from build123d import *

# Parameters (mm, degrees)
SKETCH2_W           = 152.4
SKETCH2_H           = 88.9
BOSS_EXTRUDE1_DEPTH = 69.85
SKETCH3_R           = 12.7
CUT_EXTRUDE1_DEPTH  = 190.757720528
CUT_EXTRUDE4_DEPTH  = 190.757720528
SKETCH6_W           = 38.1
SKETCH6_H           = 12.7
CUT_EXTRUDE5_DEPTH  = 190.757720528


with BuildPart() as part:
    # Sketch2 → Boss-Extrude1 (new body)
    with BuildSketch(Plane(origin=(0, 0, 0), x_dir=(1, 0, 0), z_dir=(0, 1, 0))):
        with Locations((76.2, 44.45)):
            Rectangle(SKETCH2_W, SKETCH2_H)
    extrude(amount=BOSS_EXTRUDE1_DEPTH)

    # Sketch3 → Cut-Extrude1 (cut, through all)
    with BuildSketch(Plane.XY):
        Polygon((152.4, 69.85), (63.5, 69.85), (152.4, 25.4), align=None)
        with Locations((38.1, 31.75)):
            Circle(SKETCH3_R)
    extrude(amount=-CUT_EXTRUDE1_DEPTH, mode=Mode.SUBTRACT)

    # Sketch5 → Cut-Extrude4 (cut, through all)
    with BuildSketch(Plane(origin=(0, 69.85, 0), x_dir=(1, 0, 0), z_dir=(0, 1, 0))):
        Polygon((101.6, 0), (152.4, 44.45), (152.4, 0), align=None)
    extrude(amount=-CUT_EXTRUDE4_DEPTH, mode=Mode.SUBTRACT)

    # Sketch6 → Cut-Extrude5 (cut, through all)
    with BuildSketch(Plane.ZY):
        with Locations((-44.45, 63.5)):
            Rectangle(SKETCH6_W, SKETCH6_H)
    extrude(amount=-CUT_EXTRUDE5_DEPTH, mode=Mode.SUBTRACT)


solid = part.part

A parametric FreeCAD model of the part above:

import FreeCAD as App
import Part
import Sketcher
Q = App.Units.Quantity

doc = App.newDocument("Part")
body = doc.addObject("PartDesign::Body", "Body")

# Sketch on XZ plane
sketch1 = body.newObject("Sketcher::SketchObject", "Sketch")
sketch1.AttachmentSupport = (doc.getObject("XZ_Plane"), [""])
sketch1.MapMode = "FlatFace"
sketch1.addGeometry([
    Part.LineSegment(App.Vector(0, -89, 0), App.Vector(0, 0, 0)),
    Part.LineSegment(App.Vector(0, 0, 0), App.Vector(152, 0, 0)),
    Part.LineSegment(App.Vector(152, 0, 0), App.Vector(152, -89, 0)),
    Part.LineSegment(App.Vector(152, -89, 0), App.Vector(0, -89, 0)),
], False)
sketch1.addConstraint([
    Sketcher.Constraint("Coincident", 0, 2, 1, 1),
    Sketcher.Constraint("Coincident", 1, 2, 2, 1),
    Sketcher.Constraint("Coincident", 2, 2, 3, 1),
    Sketcher.Constraint("Coincident", 3, 2, 0, 1),
    Sketcher.Constraint("Vertical", 0),
    Sketcher.Constraint("Horizontal", 1),
    Sketcher.Constraint("Vertical", 2),
    Sketcher.Constraint("Horizontal", 3),
    Sketcher.Constraint("Coincident", 0, 2, -1, 1),
    Sketcher.Constraint("DistanceX", 1, 1, 1, 2, Q("6 in")),
    Sketcher.Constraint("DistanceY", 0, 1, 0, 2, Q("3.5 in")),
])
pad1 = body.newObject("PartDesign::Pad", "Pad")
pad1.Profile = sketch1
pad1.Length = Q("2.75 in")
pad1.Reversed = True

# Sketch on XY plane
sketch2 = body.newObject("Sketcher::SketchObject", "Sketch001")
sketch2.AttachmentSupport = (doc.getObject("XY_Plane"), [""])
sketch2.MapMode = "FlatFace"
sketch2.addGeometry([
    Part.LineSegment(App.Vector(152, 70, 0), App.Vector(64, 70, 0)),
    Part.LineSegment(App.Vector(64, 70, 0), App.Vector(152, 25, 0)),
    Part.LineSegment(App.Vector(152, 25, 0), App.Vector(152, 70, 0)),
    Part.Circle(App.Vector(38, 32, 0), App.Vector(0, 0, 1), 13),
], False)
sketch2.addConstraint([
    Sketcher.Constraint("Coincident", 0, 2, 1, 1),
    Sketcher.Constraint("Coincident", 1, 2, 2, 1),
    Sketcher.Constraint("Coincident", 2, 2, 0, 1),
    Sketcher.Constraint("Horizontal", 0),
    Sketcher.Constraint("Vertical", 2),
    Sketcher.Constraint("Diameter", 3, Q("1 in")),
    Sketcher.Constraint("DistanceX", 0, 2, 0, 1, Q("3.5 in")),
    Sketcher.Constraint("DistanceX", -1, 1, 1, 2, Q("6 in")),
    Sketcher.Constraint("DistanceY", -1, 1, 1, 2, Q("1 in")),
    Sketcher.Constraint("DistanceX", 3, 3, 0, 2, Q("1 in")),
    Sketcher.Constraint("DistanceY", 2, 1, 2, 2, Q("1.75 in")),
    Sketcher.Constraint("DistanceY", 3, 3, 0, 2, Q("1.5 in")),
])
pocket1 = body.newObject("PartDesign::Pocket", "Pocket")
pocket1.Profile = sketch2
pocket1.Type = "ThroughAll"

# Sketch on XZ plane
sketch3 = body.newObject("Sketcher::SketchObject", "Sketch002")
sketch3.AttachmentSupport = (doc.getObject("XZ_Plane"), [""])
sketch3.MapMode = "FlatFace"
sketch3.AttachmentOffset = App.Placement(App.Vector(0, 0, -2.75 * 25.4), App.Rotation())
sketch3.addGeometry([
    Part.LineSegment(App.Vector(152, -44, 0), App.Vector(102, 0, 0)),
    Part.LineSegment(App.Vector(102, 0, 0), App.Vector(152, 0, 0)),
    Part.LineSegment(App.Vector(152, 0, 0), App.Vector(152, -44, 0)),
], False)
sketch3.addConstraint([
    Sketcher.Constraint("Coincident", 0, 2, 1, 1),
    Sketcher.Constraint("Coincident", 1, 2, 2, 1),
    Sketcher.Constraint("Coincident", 2, 2, 0, 1),
    Sketcher.Constraint("Horizontal", 1),
    Sketcher.Constraint("Vertical", 2),
    Sketcher.Constraint("PointOnObject", 0, 2, -1),
    Sketcher.Constraint("DistanceX", 1, 1, 1, 2, Q("2 in")),
    Sketcher.Constraint("DistanceX", -1, 1, 0, 2, Q("4 in")),
    Sketcher.Constraint("DistanceY", 2, 2, 2, 1, Q("1.75 in")),
])
pocket2 = body.newObject("PartDesign::Pocket", "Pocket001")
pocket2.Profile = sketch3
pocket2.Type = "ThroughAll"
pocket2.Reversed = True

# Sketch on YZ plane
sketch4 = body.newObject("Sketcher::SketchObject", "Sketch003")
sketch4.AttachmentSupport = (doc.getObject("YZ_Plane"), [""])
sketch4.MapMode = "FlatFace"
sketch4.addGeometry([
    Part.LineSegment(App.Vector(70, -64, 0), App.Vector(57, -64, 0)),
    Part.LineSegment(App.Vector(57, -64, 0), App.Vector(57, -25, 0)),
    Part.LineSegment(App.Vector(57, -25, 0), App.Vector(70, -25, 0)),
    Part.LineSegment(App.Vector(70, -25, 0), App.Vector(70, -64, 0)),
], False)
sketch4.addConstraint([
    Sketcher.Constraint("Coincident", 0, 2, 1, 1),
    Sketcher.Constraint("Coincident", 1, 2, 2, 1),
    Sketcher.Constraint("Coincident", 2, 2, 3, 1),
    Sketcher.Constraint("Coincident", 3, 2, 0, 1),
    Sketcher.Constraint("Horizontal", 0),
    Sketcher.Constraint("Vertical", 1),
    Sketcher.Constraint("Horizontal", 2),
    Sketcher.Constraint("Vertical", 3),
    Sketcher.Constraint("DistanceX", 0, 2, 0, 1, Q("0.5 in")),
    Sketcher.Constraint("DistanceY", 1, 1, 1, 2, Q("1.5 in")),
    Sketcher.Constraint("DistanceY", 1, 2, -1, 1, Q("1 in")),
    Sketcher.Constraint("DistanceX", -1, 1, 0, 2, Q("2.25 in")),
])
pocket3 = body.newObject("PartDesign::Pocket", "Pocket002")
pocket3.Profile = sketch4
pocket3.Type = "ThroughAll"
pocket3.Reversed = True

doc.recompute()
